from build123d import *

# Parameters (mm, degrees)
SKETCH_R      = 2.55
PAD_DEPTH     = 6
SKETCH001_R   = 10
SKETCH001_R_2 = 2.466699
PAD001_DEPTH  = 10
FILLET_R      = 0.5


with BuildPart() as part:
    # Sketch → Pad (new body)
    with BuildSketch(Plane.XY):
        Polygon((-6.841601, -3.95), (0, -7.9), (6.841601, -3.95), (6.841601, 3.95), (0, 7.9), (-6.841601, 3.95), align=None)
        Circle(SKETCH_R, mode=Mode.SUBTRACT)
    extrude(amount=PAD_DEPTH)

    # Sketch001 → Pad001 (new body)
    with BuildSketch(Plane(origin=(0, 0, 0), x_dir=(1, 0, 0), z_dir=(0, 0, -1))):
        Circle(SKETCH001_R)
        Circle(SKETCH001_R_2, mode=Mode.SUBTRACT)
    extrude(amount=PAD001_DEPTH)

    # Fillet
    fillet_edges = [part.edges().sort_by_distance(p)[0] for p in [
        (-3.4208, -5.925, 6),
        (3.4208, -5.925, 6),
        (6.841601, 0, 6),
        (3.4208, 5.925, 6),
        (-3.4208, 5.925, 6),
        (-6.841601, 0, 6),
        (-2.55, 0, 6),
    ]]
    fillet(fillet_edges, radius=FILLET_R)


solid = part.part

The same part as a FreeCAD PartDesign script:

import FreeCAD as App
import Part
import Sketcher
Q = App.Units.Quantity


def edges_at(feature, points):
    """Names of the edges that pass closest to the given points."""
    edges = feature.Shape.Edges
    near = lambda p: min(range(len(edges)), key=lambda i: edges[i].distToShape(Part.Vertex(*p))[0])
    return sorted({f"Edge{near(p) + 1}" for p in points})

doc = App.newDocument("Part")
body = doc.addObject("PartDesign::Body", "Body")

# Sketch on XY plane
sketch1 = body.newObject("Sketcher::SketchObject", "Sketch")
sketch1.AttachmentSupport = (doc.getObject("XY_Plane"), [""])
sketch1.MapMode = "FlatFace"
sketch1.addGeometry(Part.LineSegment(App.Vector(-6.8, -4, 0), App.Vector(0, -7.9, 0)), False)
sketch1.addGeometry(Part.LineSegment(App.Vector(0, -7.9, 0), App.Vector(6.8, -4, 0)), False)
sketch1.addGeometry(Part.LineSegment(App.Vector(6.8, -4, 0), App.Vector(6.8, 4, 0)), False)
sketch1.addGeometry(Part.LineSegment(App.Vector(6.8, 4, 0), App.Vector(0, 7.9, 0)), False)
sketch1.addGeometry(Part.LineSegment(App.Vector(0, 7.9, 0), App.Vector(-6.8, 4, 0)), False)
sketch1.addGeometry(Part.LineSegment(App.Vector(-6.8, 4, 0), App.Vector(-6.8, -4, 0)), False)
sketch1.addGeometry(Part.Circle(App.Vector(0, 0, 0), App.Vector(0, 0, 1), 2.5), False)
sketch1.addConstraint(Sketcher.Constraint("Coincident", 0, 2, 1, 1))
sketch1.addConstraint(Sketcher.Constraint("Coincident", 1, 2, 2, 1))
sketch1.addConstraint(Sketcher.Constraint("Coincident", 2, 2, 3, 1))
sketch1.addConstraint(Sketcher.Constraint("Coincident", 3, 2, 4, 1))
sketch1.addConstraint(Sketcher.Constraint("Coincident", 4, 2, 5, 1))
sketch1.addConstraint(Sketcher.Constraint("Coincident", 5, 2, 0, 1))
sketch1.addConstraint(Sketcher.Constraint("Vertical", 2))
sketch1.addConstraint(Sketcher.Constraint("Vertical", 5))
sketch1.addConstraint(Sketcher.Constraint("Coincident", 6, 3, -1, 1))
sketch1.addConstraint(Sketcher.Constraint("Symmetric", 0, 2, 3, 2, -1, 1))
sketch1.addConstraint(Sketcher.Constraint("Symmetric", 1, 2, 4, 2, -1, 1))
sketch1.addConstraint(Sketcher.Constraint("PointOnObject", 0, 2, -2))
sketch1.addConstraint(Sketcher.Constraint("Parallel", 0, 3))
sketch1.addConstraint(Sketcher.Constraint("Horizontal", 2, 2, 4, 2))
sketch1.addConstraint(Sketcher.Constraint("Diameter", 6, Q("5.1 mm")))
sketch1.addConstraint(Sketcher.Constraint("Angle", 0, Q("-29.999999 deg")))
sketch1.addConstraint(Sketcher.Constraint("DistanceY", 2, 1, 2, 2, Q("7.9 mm")))
sketch1.addConstraint(Sketcher.Constraint("Distance", 0, Q("7.9 mm")))
pad1 = body.newObject("PartDesign::Pad", "Pad")
pad1.Profile = sketch1
pad1.Length = 6

# Sketch on XY plane
sketch2 = body.newObject("Sketcher::SketchObject", "Sketch001")
sketch2.AttachmentSupport = (doc.getObject("XY_Plane"), [""])
sketch2.MapMode = "FlatFace"
sketch2.addGeometry(Part.Circle(App.Vector(0, 0, 0), App.Vector(0, 0, 1), 10), False)
sketch2.addGeometry(Part.Circle(App.Vector(0, 0, 0), App.Vector(0, 0, 1), 2.5), False)
sketch2.addConstraint(Sketcher.Constraint("Coincident", 0, 3, -1, 1))
sketch2.addConstraint(Sketcher.Constraint("Coincident", 1, 3, -1, 1))
sketch2.addConstraint(Sketcher.Constraint("Diameter", 0, Q("20 mm")))
sketch2.addConstraint(Sketcher.Constraint("Diameter", 1, Q("4.933398 mm")))
pad2 = body.newObject("PartDesign::Pad", "Pad001")
pad2.Profile = sketch2
pad2.Length = 10
pad2.Reversed = True
doc.recompute()

fillet = body.newObject("PartDesign::Fillet", "Fillet")
fillet.Base = (pad2, edges_at(pad2, [
    (-3.421, -5.925, 6),
    (3.421, -5.925, 6),
    (6.842, 0, 6),
    (3.421, 5.925, 6),
    (-3.421, 5.925, 6),
    (-6.842, 0, 6),
    (-2.55, 0, 6),
]))
fillet.Radius = 0.5

doc.recompute()
